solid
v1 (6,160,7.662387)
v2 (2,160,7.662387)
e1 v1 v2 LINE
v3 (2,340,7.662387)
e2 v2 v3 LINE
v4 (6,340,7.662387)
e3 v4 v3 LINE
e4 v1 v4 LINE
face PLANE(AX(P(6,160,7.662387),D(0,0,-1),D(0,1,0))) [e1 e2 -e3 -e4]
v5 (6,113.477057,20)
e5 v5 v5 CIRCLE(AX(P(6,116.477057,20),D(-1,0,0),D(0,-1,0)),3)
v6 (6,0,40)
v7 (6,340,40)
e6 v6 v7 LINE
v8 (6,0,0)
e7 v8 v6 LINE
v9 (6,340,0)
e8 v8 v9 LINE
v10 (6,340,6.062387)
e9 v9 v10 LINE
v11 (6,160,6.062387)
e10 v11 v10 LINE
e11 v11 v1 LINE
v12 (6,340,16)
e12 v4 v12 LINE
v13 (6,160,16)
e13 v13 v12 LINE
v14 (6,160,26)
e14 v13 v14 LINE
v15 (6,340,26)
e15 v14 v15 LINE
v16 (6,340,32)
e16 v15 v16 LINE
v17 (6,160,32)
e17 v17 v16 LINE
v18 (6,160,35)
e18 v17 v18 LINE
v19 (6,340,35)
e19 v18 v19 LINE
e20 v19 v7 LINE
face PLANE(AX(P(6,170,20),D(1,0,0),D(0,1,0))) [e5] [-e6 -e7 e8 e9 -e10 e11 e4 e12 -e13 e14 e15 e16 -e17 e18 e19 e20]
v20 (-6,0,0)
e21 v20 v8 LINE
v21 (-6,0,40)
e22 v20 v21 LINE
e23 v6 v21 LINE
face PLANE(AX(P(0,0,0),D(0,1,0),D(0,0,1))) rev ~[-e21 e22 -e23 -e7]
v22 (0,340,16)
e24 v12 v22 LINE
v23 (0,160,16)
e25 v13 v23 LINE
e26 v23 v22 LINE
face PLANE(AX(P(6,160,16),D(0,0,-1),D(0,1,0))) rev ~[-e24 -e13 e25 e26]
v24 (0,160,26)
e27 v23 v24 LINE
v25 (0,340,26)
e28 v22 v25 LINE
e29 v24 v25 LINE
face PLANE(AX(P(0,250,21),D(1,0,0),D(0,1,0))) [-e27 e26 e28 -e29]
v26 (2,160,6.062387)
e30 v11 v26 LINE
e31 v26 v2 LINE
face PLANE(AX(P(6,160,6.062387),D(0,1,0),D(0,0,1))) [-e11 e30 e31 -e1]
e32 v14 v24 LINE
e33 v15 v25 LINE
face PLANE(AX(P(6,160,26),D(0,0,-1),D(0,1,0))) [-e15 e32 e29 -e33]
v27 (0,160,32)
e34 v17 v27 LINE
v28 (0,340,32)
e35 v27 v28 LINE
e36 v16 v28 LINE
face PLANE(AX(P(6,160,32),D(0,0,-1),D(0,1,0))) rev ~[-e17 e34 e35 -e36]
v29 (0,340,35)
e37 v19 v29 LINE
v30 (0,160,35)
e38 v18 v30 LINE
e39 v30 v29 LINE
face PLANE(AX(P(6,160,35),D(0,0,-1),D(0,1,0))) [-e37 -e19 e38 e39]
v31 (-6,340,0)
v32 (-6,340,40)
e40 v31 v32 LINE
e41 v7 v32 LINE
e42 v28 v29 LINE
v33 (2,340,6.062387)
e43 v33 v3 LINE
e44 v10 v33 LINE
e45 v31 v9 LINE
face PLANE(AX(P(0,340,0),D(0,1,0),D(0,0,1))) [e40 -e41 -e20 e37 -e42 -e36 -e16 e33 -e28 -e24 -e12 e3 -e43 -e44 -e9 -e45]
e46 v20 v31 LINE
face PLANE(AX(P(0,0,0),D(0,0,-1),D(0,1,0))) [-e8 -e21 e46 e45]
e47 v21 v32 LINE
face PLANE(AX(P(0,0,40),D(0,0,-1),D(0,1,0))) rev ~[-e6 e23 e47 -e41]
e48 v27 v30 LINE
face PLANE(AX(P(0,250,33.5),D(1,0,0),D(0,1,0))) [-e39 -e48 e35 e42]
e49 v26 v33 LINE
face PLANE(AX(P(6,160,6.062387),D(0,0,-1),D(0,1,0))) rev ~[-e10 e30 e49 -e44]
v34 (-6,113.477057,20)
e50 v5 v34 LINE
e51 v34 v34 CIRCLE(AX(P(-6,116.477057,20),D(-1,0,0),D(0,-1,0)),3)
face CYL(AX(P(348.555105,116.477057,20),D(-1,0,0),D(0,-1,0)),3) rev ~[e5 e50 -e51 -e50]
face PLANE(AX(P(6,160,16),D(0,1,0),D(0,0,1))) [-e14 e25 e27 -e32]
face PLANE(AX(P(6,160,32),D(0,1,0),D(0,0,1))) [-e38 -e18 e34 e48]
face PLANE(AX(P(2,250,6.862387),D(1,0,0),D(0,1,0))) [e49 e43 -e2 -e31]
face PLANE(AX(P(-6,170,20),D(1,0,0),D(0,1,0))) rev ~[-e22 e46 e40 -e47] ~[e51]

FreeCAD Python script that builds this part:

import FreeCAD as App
import Part
import Sketcher
from FreeCAD import Vector
Q = App.Units.Quantity

doc = App.newDocument("Part")
body = doc.addObject("PartDesign::Body", "Body")

# Sketch on YZ plane
sketch1 = doc.addObject("Sketcher::SketchObject", "Sketch")
body.addObject(sketch1)
sketch1.AttachmentSupport = (doc.YZ_Plane, [""])
sketch1.MapMode = "FlatFace"
sketch1.addGeometry(Part.LineSegment(Vector(0, 40, 0), Vector(0, 0, 0)), False)
sketch1.addGeometry(Part.LineSegment(Vector(0, 0, 0), Vector(340, 0, 0)), False)
sketch1.addGeometry(Part.LineSegment(Vector(340, 0, 0), Vector(340, 40, 0)), False)
sketch1.addGeometry(Part.LineSegment(Vector(340, 40, 0), Vector(0, 40, 0)), False)
sketch1.addConstraint(Sketcher.Constraint("Coincident", 0, 2, 1, 1))
sketch1.addConstraint(Sketcher.Constraint("Coincident", 1, 2, 2, 1))
sketch1.addConstraint(Sketcher.Constraint("Coincident", 2, 2, 3, 1))
sketch1.addConstraint(Sketcher.Constraint("Coincident", 3, 2, 0, 1))
sketch1.addConstraint(Sketcher.Constraint("Vertical", 0))
sketch1.addConstraint(Sketcher.Constraint("Horizontal", 1))
sketch1.addConstraint(Sketcher.Constraint("Vertical", 2))
sketch1.addConstraint(Sketcher.Constraint("Horizontal", 3))
sketch1.addConstraint(Sketcher.Constraint("Coincident", 0, 2, -1, 1))
sketch1.addConstraint(Sketcher.Constraint("DistanceX", 1, 1, 1, 2, Q("340 mm")))
sketch1.addConstraint(Sketcher.Constraint("DistanceY", 0, 2, 0, 1, Q("40 mm")))
pad1 = doc.addObject("PartDesign::Pad", "Pad")
body.addObject(pad1)
pad1.Profile = sketch1
pad1.Length = 12
pad1.Midplane = True

# Sketch on YZ plane
sketch2 = doc.addObject("Sketcher::SketchObject", "Sketch001")
body.addObject(sketch2)
sketch2.AttachmentSupport = (doc.YZ_Plane, [""])
sketch2.MapMode = "FlatFace"
sketch2.AttachmentOffset = App.Placement(Vector(0, 0, 6), App.Rotation())
sketch2.addGeometry(Part.LineSegment(Vector(160, 35, 0), Vector(160, 32, 0)), False)
sketch2.addGeometry(Part.LineSegment(Vector(160, 32, 0), Vector(340, 32, 0)), False)
sketch2.addGeometry(Part.LineSegment(Vector(340, 32, 0), Vector(340, 35, 0)), False)
sketch2.addGeometry(Part.LineSegment(Vector(340, 35, 0), Vector(160, 35, 0)), False)
sketch2.addConstraint(Sketcher.Constraint("Coincident", 0, 2, 1, 1))
sketch2.addConstraint(Sketcher.Constraint("Coincident", 1, 2, 2, 1))
sketch2.addConstraint(Sketcher.Constraint("Coincident", 2, 2, 3, 1))
sketch2.addConstraint(Sketcher.Constraint("Coincident", 3, 2, 0, 1))
sketch2.addConstraint(Sketcher.Constraint("Vertical", 0))
sketch2.addConstraint(Sketcher.Constraint("Horizontal", 1))
sketch2.addConstraint(Sketcher.Constraint("Vertical", 2))
sketch2.addConstraint(Sketcher.Constraint("Horizontal", 3))
sketch2.addConstraint(Sketcher.Constraint("DistanceX", 1, 1, 1, 2, Q("180 mm")))
sketch2.addConstraint(Sketcher.Constraint("DistanceY", 0, 2, 0, 1, Q("3 mm")))
sketch2.addConstraint(Sketcher.Constraint("DistanceX", -1, 1, 0, 2, Q("160 mm")))
sketch2.addConstraint(Sketcher.Constraint("DistanceY", -1, 1, 0, 2, Q("32 mm")))
pocket1 = doc.addObject("PartDesign::Pocket", "Pocket")
body.addObject(pocket1)
pocket1.Profile = sketch2
pocket1.Length = 6

# Sketch on YZ plane
sketch3 = doc.addObject("Sketcher::SketchObject", "Sketch002")
body.addObject(sketch3)
sketch3.AttachmentSupport = (doc.YZ_Plane, [""])
sketch3.MapMode = "FlatFace"
sketch3.AttachmentOffset = App.Placement(Vector(0, 0, 6), App.Rotation())
sketch3.addGeometry(Part.Circle(Vector(116.5, 20, 0), Vector(0, 0, 1), 3), False)
sketch3.addConstraint(Sketcher.Constraint("Diameter", 0, Q("6 mm")))
sketch3.addConstraint(Sketcher.Constraint("DistanceY", -1, 1, 0, 3, Q("20 mm")))
sketch3.addConstraint(Sketcher.Constraint("DistanceX", -1, 1, 0, 3, Q("116.477057 mm")))
doc.recompute()
hole = doc.addObject("PartDesign::Hole", "Hole")
body.addObject(hole)
hole.Profile = sketch3
hole.ThreadType = "None"
hole.Diameter = 6
hole.DepthType = "ThroughAll"

# Sketch on YZ plane
sketch4 = doc.addObject("Sketcher::SketchObject", "Sketch003")
body.addObject(sketch4)
sketch4.AttachmentSupport = (doc.YZ_Plane, [""])
sketch4.MapMode = "FlatFace"
sketch4.AttachmentOffset = App.Placement(Vector(0, 0, 6), App.Rotation())
sketch4.addGeometry(Part.LineSegment(Vector(160, 26, 0), Vector(160, 16, 0)), False)
sketch4.addGeometry(Part.LineSegment(Vector(160, 16, 0), Vector(340, 16, 0)), False)
sketch4.addGeometry(Part.LineSegment(Vector(340, 16, 0), Vector(340, 26, 0)), False)
sketch4.addGeometry(Part.LineSegment(Vector(340, 26, 0), Vector(160, 26, 0)), False)
sketch4.addConstraint(Sketcher.Constraint("Coincident", 0, 2, 1, 1))
sketch4.addConstraint(Sketcher.Constraint("Coincident", 1, 2, 2, 1))
sketch4.addConstraint(Sketcher.Constraint("Coincident", 2, 2, 3, 1))
sketch4.addConstraint(Sketcher.Constraint("Coincident", 3, 2, 0, 1))
sketch4.addConstraint(Sketcher.Constraint("Vertical", 0))
sketch4.addConstraint(Sketcher.Constraint("Horizontal", 1))
sketch4.addConstraint(Sketcher.Constraint("Vertical", 2))
sketch4.addConstraint(Sketcher.Constraint("Horizontal", 3))
sketch4.addConstraint(Sketcher.Constraint("DistanceX", 1, 1, 1, 2, Q("180 mm")))
sketch4.addConstraint(Sketcher.Constraint("DistanceY", 0, 2, 0, 1, Q("10 mm")))
sketch4.addConstraint(Sketcher.Constraint("DistanceX", -1, 1, 0, 2, Q("160 mm")))
sketch4.addConstraint(Sketcher.Constraint("DistanceY", -1, 1, 0, 2, Q("16 mm")))
pocket2 = doc.addObject("PartDesign::Pocket", "Pocket001")
body.addObject(pocket2)
pocket2.Profile = sketch4
pocket2.Length = 6

# Sketch on YZ plane
sketch5 = doc.addObject("Sketcher::SketchObject", "Sketch004")
body.addObject(sketch5)
sketch5.AttachmentSupport = (doc.YZ_Plane, [""])
sketch5.MapMode = "FlatFace"
sketch5.AttachmentOffset = App.Placement(Vector(0, 0, 6), App.Rotation())
sketch5.addGeometry(Part.LineSegment(Vector(160, 7.7, 0), Vector(160, 6.1, 0)), False)
sketch5.addGeometry(Part.LineSegment(Vector(160, 6.1, 0), Vector(340, 6.1, 0)), False)
sketch5.addGeometry(Part.LineSegment(Vector(340, 6.1, 0), Vector(340, 7.7, 0)), False)
sketch5.addGeometry(Part.LineSegment(Vector(340, 7.7, 0), Vector(160, 7.7, 0)), False)
sketch5.addConstraint(Sketcher.Constraint("Coincident", 0, 2, 1, 1))
sketch5.addConstraint(Sketcher.Constraint("Coincident", 1, 2, 2, 1))
sketch5.addConstraint(Sketcher.Constraint("Coincident", 2, 2, 3, 1))
sketch5.addConstraint(Sketcher.Constraint("Coincident", 3, 2, 0, 1))
sketch5.addConstraint(Sketcher.Constraint("Vertical", 0))
sketch5.addConstraint(Sketcher.Constraint("Horizontal", 1))
sketch5.addConstraint(Sketcher.Constraint("Vertical", 2))
sketch5.addConstraint(Sketcher.Constraint("Horizontal", 3))
sketch5.addConstraint(Sketcher.Constraint("DistanceX", 1, 1, 1, 2, Q("180 mm")))
sketch5.addConstraint(Sketcher.Constraint("DistanceY", 0, 2, 0, 1, Q("1.6 mm")))
sketch5.addConstraint(Sketcher.Constraint("DistanceX", -1, 1, 0, 2, Q("160 mm")))
sketch5.addConstraint(Sketcher.Constraint("DistanceY", -1, 1, 0, 2, Q("6.062387 mm")))
pocket3 = doc.addObject("PartDesign::Pocket", "Pocket002")
body.addObject(pocket3)
pocket3.Profile = sketch5
pocket3.Length = 4

doc.recompute()
